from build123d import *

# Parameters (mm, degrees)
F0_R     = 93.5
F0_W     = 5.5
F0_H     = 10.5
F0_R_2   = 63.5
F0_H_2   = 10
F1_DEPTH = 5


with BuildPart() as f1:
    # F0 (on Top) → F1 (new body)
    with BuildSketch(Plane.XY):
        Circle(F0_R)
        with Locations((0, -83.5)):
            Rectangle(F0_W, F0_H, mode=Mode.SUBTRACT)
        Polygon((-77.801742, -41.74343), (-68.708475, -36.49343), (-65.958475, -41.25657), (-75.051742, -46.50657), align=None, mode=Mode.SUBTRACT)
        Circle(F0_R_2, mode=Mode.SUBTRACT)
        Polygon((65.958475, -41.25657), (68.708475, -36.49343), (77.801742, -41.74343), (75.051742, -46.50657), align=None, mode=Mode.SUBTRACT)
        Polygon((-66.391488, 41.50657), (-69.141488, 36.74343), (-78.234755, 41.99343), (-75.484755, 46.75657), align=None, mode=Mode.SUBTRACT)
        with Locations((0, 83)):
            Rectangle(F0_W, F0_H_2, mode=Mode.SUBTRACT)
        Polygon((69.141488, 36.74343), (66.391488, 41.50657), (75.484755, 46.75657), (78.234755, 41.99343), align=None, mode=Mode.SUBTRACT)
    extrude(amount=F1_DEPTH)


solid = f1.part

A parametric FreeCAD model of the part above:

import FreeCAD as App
import Part
import Sketcher

V = App.Vector
Q = App.Units.Quantity

doc = App.newDocument("Part")
body = doc.addObject("PartDesign::Body", "Body")

# Sketch on XY plane
sketch1 = body.newObject("Sketcher::SketchObject", "Sketch")
sketch1.AttachmentSupport = (doc.getObject("XY_Plane"), [""])
sketch1.MapMode = "FlatFace"
sketch1.addGeometry([
    Part.Circle(V(0, 0, 0), V(0, 0, 1), 93.5),  # 0
    Part.LineSegment(V(2.75, -88.75, 0), V(-2.75, -88.75, 0)),  # 1
    Part.LineSegment(V(-2.75, -88.75, 0), V(-2.75, -78.25, 0)),  # 2
    Part.LineSegment(V(-2.75, -78.25, 0), V(2.75, -78.25, 0)),  # 3
    Part.LineSegment(V(2.75, -78.25, 0), V(2.75, -88.75, 0)),  # 4
    Part.LineSegment(V(-75.051742, -46.50657, 0), V(-77.801742, -41.74343, 0)),  # 5
    Part.LineSegment(V(-77.801742, -41.74343, 0), V(-68.708475, -36.49343, 0)),  # 6
    Part.LineSegment(V(-68.708475, -36.49343, 0), V(-65.958475, -41.25657, 0)),  # 7
    Part.LineSegment(V(-65.958475, -41.25657, 0), V(-75.051742, -46.50657, 0)),  # 8
    Part.LineSegment(V(75.051742, -46.50657, 0), V(65.958475, -41.25657, 0)),  # 9
    Part.LineSegment(V(65.958475, -41.25657, 0), V(68.708475, -36.49343, 0)),  # 10
    Part.LineSegment(V(68.708475, -36.49343, 0), V(77.801742, -41.74343, 0)),  # 11
    Part.LineSegment(V(77.801742, -41.74343, 0), V(75.051742, -46.50657, 0)),  # 12
    Part.LineSegment(V(-75.484755, 46.75657, 0), V(-66.391488, 41.50657, 0)),  # 13
    Part.LineSegment(V(-66.391488, 41.50657, 0), V(-69.141488, 36.74343, 0)),  # 14
    Part.LineSegment(V(-69.141488, 36.74343, 0), V(-78.234755, 41.99343, 0)),  # 15
    Part.LineSegment(V(-78.234755, 41.99343, 0), V(-75.484755, 46.75657, 0)),  # 16
    Part.Circle(V(0, 0, 0), V(0, 0, 1), 63.5),  # 17
    Part.LineSegment(V(2.75, 78, 0), V(-2.75, 78, 0)),  # 18
    Part.LineSegment(V(-2.75, 78, 0), V(-2.75, 88, 0)),  # 19
    Part.LineSegment(V(-2.75, 88, 0), V(2.75, 88, 0)),  # 20
    Part.LineSegment(V(2.75, 88, 0), V(2.75, 78, 0)),  # 21
    Part.LineSegment(V(78.234755, 41.99343, 0), V(69.141488, 36.74343, 0)),  # 22
    Part.LineSegment(V(69.141488, 36.74343, 0), V(66.391488, 41.50657, 0)),  # 23
    Part.LineSegment(V(66.391488, 41.50657, 0), V(75.484755, 46.75657, 0)),  # 24
    Part.LineSegment(V(75.484755, 46.75657, 0), V(78.234755, 41.99343, 0)),  # 25
], False)
sketch1.addConstraint([
    Sketcher.Constraint("Coincident", 1, 2, 2, 1),
    Sketcher.Constraint("Coincident", 2, 2, 3, 1),
    Sketcher.Constraint("Coincident", 3, 2, 4, 1),
    Sketcher.Constraint("Coincident", 4, 2, 1, 1),
    Sketcher.Constraint("Coincident", 5, 2, 6, 1),
    Sketcher.Constraint("Coincident", 6, 2, 7, 1),
    Sketcher.Constraint("Coincident", 7, 2, 8, 1),
    Sketcher.Constraint("Coincident", 8, 2, 5, 1),
    Sketcher.Constraint("Coincident", 9, 2, 10, 1),
    Sketcher.Constraint("Coincident", 10, 2, 11, 1),
    Sketcher.Constraint("Coincident", 11, 2, 12, 1),
    Sketcher.Constraint("Coincident", 12, 2, 9, 1),
    Sketcher.Constraint("Coincident", 13, 2, 14, 1),
    Sketcher.Constraint("Coincident", 14, 2, 15, 1),
    Sketcher.Constraint("Coincident", 15, 2, 16, 1),
    Sketcher.Constraint("Coincident", 16, 2, 13, 1),
    Sketcher.Constraint("Coincident", 18, 2, 19, 1),
    Sketcher.Constraint("Coincident", 19, 2, 20, 1),
    Sketcher.Constraint("Coincident", 20, 2, 21, 1),
    Sketcher.Constraint("Coincident", 21, 2, 18, 1),
    Sketcher.Constraint("Coincident", 22, 2, 23, 1),
    Sketcher.Constraint("Coincident", 23, 2, 24, 1),
    Sketcher.Constraint("Coincident", 24, 2, 25, 1),
    Sketcher.Constraint("Coincident", 25, 2, 22, 1),
    Sketcher.Constraint("Horizontal", 1),
    Sketcher.Constraint("Vertical", 2),
    Sketcher.Constraint("Horizontal", 3),
    Sketcher.Constraint("Vertical", 4),
    Sketcher.Constraint("Horizontal", 18),
    Sketcher.Constraint("Vertical", 19),
    Sketcher.Constraint("Horizontal", 20),
    Sketcher.Constraint("Vertical", 21),
    Sketcher.Constraint("Coincident", 0, 3, -1, 1),
    Sketcher.Constraint("Coincident", 17, 3, -1, 1),
    Sketcher.Constraint("Symmetric", 7, 2, 9, 2, -2),
    Sketcher.Constraint("Symmetric", 6, 2, 10, 2, -2),
    Sketcher.Constraint("Symmetric", 5, 2, 11, 2, -2),
    Sketcher.Constraint("Symmetric", 8, 2, 12, 2, -2),
    Sketcher.Constraint("Symmetric", 14, 2, 22, 2, -2),
    Sketcher.Constraint("Symmetric", 13, 2, 23, 2, -2),
    Sketcher.Constraint("Symmetric", 16, 2, 24, 2, -2),
    Sketcher.Constraint("Symmetric", 15, 2, 25, 2, -2),
    Sketcher.Constraint("Perpendicular", 5, 6),
    Sketcher.Constraint("Perpendicular", 6, 7),
    Sketcher.Constraint("Perpendicular", 7, 8),
    Sketcher.Constraint("Perpendicular", 12, 13),
    Sketcher.Constraint("Perpendicular", 13, 14),
    Sketcher.Constraint("Perpendicular", 14, 15),
    Sketcher.Constraint("Perpendicular", 15, 16),
    Sketcher.Constraint("Vertical", 2, 2, 18, 2),
    Sketcher.Constraint("Vertical", 4, 2, 20, 2),
    Sketcher.Constraint("Equal", 11, 13),
    Sketcher.Constraint("Equal", 12, 14),
    Sketcher.Constraint("Diameter", 0, Q("187 mm")),
    Sketcher.Constraint("Diameter", 17, Q("127 mm")),
    Sketcher.Constraint("DistanceY", 19, 1, 19, 2, Q("10 mm")),
    Sketcher.Constraint("Angle", 5, Q("119.999999 deg")),
    Sketcher.Constraint("DistanceX", 1, 2, 1, 1, Q("5.5 mm")),
    Sketcher.Constraint("DistanceY", 2, 1, 2, 2, Q("10.5 mm")),
    Sketcher.Constraint("DistanceY", -1, 1, 18, 2, Q("78 mm")),
    Sketcher.Constraint("DistanceY", 6, 2, 13, 2, Q("78 mm")),
    Sketcher.Constraint("Distance", 5, Q("5.5 mm")),
    Sketcher.Constraint("Distance", 6, Q("10.5 mm")),
    Sketcher.Constraint("DistanceX", 1, 2, -1, 1, Q("2.75 mm")),
    Sketcher.Constraint("DistanceY", 1, 2, -1, 1, Q("88.75 mm")),
    Sketcher.Constraint("DistanceY", 5, 2, -1, 1, Q("41.74343 mm")),
    Sketcher.Constraint("DistanceX", 15, 2, 6, 2, Q("9.52628 mm")),
    Sketcher.Constraint("DistanceX", 5, 2, -1, 1, Q("77.801742 mm")),
])
pad1 = body.newObject("PartDesign::Pad", "Pad")
pad1.Profile = sketch1
pad1.Length = 5

doc.recompute()
